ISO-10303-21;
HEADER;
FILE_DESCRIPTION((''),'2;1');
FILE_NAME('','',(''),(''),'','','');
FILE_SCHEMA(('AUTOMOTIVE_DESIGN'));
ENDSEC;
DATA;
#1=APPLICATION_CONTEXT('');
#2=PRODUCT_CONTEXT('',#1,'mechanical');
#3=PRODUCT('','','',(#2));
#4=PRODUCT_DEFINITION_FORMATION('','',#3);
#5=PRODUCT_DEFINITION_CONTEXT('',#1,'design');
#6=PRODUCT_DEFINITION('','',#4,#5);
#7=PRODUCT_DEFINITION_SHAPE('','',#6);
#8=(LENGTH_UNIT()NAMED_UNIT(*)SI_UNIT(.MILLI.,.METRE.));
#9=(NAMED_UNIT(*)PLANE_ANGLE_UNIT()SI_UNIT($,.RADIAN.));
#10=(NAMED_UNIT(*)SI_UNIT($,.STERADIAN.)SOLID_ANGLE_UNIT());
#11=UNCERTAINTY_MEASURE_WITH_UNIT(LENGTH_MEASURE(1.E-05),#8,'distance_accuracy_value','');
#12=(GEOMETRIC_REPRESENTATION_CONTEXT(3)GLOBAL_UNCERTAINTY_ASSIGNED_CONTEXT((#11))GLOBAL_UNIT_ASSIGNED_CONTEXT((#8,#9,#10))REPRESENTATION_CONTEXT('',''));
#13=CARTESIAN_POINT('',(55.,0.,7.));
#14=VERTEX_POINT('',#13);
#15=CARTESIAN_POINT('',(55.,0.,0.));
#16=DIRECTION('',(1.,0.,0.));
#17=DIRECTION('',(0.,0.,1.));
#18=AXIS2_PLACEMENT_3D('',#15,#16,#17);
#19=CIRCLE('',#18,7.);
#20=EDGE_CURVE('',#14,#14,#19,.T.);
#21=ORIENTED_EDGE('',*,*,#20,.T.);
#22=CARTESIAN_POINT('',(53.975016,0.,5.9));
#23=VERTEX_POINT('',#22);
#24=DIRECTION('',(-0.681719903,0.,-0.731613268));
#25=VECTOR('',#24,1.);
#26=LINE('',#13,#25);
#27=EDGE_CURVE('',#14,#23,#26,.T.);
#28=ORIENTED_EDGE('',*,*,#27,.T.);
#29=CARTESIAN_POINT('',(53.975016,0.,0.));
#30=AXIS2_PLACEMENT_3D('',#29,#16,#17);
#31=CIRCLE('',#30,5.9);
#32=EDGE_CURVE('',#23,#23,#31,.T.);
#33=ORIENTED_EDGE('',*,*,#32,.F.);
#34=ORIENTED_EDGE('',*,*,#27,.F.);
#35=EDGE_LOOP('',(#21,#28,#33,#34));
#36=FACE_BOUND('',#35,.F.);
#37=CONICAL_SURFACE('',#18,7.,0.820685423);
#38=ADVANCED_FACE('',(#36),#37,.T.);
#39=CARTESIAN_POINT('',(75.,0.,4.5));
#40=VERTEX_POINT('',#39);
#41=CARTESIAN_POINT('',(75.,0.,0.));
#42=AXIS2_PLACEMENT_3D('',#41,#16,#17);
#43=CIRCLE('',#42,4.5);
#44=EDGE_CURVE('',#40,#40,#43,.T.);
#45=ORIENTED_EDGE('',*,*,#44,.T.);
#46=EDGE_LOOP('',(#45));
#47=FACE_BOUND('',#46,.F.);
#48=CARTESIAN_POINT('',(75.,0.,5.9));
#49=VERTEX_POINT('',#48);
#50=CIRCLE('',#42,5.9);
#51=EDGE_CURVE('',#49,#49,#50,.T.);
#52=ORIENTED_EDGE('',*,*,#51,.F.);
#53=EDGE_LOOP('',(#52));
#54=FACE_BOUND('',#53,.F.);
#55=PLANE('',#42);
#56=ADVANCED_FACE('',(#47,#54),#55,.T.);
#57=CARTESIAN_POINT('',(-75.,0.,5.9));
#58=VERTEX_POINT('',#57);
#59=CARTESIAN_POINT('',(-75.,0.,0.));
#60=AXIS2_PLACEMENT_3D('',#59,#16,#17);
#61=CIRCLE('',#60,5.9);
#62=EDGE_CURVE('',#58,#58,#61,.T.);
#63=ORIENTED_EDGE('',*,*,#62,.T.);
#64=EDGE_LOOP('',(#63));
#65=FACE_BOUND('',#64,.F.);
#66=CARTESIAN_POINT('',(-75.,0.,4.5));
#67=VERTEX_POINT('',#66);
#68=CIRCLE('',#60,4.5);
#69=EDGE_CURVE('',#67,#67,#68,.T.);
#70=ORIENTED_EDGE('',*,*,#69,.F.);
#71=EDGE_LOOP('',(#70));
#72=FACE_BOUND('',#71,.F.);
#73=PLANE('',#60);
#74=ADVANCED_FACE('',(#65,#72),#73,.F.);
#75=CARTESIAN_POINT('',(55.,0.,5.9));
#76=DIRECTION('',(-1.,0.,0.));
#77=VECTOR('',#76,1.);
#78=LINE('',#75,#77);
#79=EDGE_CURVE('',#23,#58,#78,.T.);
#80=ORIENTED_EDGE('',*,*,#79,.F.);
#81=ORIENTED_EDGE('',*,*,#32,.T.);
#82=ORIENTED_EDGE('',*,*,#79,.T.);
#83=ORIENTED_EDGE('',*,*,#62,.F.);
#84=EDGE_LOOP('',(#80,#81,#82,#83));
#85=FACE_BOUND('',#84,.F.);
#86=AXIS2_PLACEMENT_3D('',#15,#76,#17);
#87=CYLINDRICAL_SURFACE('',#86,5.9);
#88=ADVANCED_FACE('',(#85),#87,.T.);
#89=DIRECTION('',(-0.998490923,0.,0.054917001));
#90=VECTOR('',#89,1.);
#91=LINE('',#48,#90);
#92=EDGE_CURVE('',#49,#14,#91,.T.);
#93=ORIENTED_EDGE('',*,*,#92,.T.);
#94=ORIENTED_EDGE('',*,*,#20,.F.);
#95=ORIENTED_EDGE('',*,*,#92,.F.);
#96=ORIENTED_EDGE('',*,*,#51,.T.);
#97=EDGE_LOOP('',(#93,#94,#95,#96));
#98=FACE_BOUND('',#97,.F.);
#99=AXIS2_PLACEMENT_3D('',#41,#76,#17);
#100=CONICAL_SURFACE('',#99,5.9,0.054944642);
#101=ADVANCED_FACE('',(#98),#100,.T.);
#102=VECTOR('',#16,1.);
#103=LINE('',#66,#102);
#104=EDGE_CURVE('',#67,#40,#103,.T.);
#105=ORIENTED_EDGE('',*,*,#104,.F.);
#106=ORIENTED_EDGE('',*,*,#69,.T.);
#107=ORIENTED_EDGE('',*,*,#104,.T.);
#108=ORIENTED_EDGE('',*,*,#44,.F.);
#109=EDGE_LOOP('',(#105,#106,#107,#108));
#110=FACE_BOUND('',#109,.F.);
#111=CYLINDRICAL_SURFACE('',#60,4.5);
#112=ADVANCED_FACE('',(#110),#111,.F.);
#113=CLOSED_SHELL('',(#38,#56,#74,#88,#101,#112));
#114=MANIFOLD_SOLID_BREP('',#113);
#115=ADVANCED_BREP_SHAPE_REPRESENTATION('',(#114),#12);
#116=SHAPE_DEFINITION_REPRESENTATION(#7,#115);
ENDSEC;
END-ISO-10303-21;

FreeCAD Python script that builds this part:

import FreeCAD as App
import Part
import Sketcher
Q = App.Units.Quantity


def add_polygon(sketch, points):
    """Adds a closed chain of lines whose ends are joined by coincident constraints."""
    first, n = sketch.GeometryCount, len(points)
    for a, b in zip(points, points[1:] + points[:1]):
        sketch.addGeometry(Part.LineSegment(App.Vector(*a, 0), App.Vector(*b, 0)), False)
    for i in range(n):
        sketch.addConstraint(Sketcher.Constraint("Coincident", first + i, 2, first + (i + 1) % n, 1))

doc = App.newDocument("Part")
body = doc.addObject("PartDesign::Body", "Body")

sketch1 = doc.addObject("Sketcher::SketchObject", "Sketch")
body.addObject(sketch1)
sketch1.AttachmentSupport = (doc.XZ_Plane, [""])
sketch1.MapMode = "FlatFace"
add_polygon(sketch1, [(-75, 5.9), (-75, 4.5), (75, 4.5), (75, 5.9), (55, 7), (54, 5.9)])
sketch1.addConstraint(Sketcher.Constraint("Vertical", 0))
sketch1.addConstraint(Sketcher.Constraint("Horizontal", 1))
sketch1.addConstraint(Sketcher.Constraint("Vertical", 2))
sketch1.addConstraint(Sketcher.Constraint("Horizontal", 5))
sketch1.addConstraint(Sketcher.Constraint("Symmetric", 2, 2, 5, 2, -2))
sketch1.addConstraint(Sketcher.Constraint("DistanceX", 1, 1, 1, 2, Q("150 mm")))
sketch1.addConstraint(Sketcher.Constraint("DistanceY", 0, 2, 0, 1, Q("1.4 mm")))
sketch1.addConstraint(Sketcher.Constraint("DistanceX", -1, 1, 3, 2, Q("55 mm")))
sketch1.addConstraint(Sketcher.Constraint("DistanceY", -1, 1, 3, 2, Q("7 mm")))
sketch1.addConstraint(Sketcher.Constraint("DistanceY", -1, 1, 0, 2, Q("4.5 mm")))
sketch1.addConstraint(Sketcher.Constraint("DistanceX", 5, 2, 5, 1, Q("128.975016 mm")))
revolution = doc.addObject("PartDesign::Revolution", "Revolution")
body.addObject(revolution)
revolution.Profile = sketch1
revolution.ReferenceAxis = (sketch1, ["H_Axis"])
revolution.Angle = 360

doc.recompute()
